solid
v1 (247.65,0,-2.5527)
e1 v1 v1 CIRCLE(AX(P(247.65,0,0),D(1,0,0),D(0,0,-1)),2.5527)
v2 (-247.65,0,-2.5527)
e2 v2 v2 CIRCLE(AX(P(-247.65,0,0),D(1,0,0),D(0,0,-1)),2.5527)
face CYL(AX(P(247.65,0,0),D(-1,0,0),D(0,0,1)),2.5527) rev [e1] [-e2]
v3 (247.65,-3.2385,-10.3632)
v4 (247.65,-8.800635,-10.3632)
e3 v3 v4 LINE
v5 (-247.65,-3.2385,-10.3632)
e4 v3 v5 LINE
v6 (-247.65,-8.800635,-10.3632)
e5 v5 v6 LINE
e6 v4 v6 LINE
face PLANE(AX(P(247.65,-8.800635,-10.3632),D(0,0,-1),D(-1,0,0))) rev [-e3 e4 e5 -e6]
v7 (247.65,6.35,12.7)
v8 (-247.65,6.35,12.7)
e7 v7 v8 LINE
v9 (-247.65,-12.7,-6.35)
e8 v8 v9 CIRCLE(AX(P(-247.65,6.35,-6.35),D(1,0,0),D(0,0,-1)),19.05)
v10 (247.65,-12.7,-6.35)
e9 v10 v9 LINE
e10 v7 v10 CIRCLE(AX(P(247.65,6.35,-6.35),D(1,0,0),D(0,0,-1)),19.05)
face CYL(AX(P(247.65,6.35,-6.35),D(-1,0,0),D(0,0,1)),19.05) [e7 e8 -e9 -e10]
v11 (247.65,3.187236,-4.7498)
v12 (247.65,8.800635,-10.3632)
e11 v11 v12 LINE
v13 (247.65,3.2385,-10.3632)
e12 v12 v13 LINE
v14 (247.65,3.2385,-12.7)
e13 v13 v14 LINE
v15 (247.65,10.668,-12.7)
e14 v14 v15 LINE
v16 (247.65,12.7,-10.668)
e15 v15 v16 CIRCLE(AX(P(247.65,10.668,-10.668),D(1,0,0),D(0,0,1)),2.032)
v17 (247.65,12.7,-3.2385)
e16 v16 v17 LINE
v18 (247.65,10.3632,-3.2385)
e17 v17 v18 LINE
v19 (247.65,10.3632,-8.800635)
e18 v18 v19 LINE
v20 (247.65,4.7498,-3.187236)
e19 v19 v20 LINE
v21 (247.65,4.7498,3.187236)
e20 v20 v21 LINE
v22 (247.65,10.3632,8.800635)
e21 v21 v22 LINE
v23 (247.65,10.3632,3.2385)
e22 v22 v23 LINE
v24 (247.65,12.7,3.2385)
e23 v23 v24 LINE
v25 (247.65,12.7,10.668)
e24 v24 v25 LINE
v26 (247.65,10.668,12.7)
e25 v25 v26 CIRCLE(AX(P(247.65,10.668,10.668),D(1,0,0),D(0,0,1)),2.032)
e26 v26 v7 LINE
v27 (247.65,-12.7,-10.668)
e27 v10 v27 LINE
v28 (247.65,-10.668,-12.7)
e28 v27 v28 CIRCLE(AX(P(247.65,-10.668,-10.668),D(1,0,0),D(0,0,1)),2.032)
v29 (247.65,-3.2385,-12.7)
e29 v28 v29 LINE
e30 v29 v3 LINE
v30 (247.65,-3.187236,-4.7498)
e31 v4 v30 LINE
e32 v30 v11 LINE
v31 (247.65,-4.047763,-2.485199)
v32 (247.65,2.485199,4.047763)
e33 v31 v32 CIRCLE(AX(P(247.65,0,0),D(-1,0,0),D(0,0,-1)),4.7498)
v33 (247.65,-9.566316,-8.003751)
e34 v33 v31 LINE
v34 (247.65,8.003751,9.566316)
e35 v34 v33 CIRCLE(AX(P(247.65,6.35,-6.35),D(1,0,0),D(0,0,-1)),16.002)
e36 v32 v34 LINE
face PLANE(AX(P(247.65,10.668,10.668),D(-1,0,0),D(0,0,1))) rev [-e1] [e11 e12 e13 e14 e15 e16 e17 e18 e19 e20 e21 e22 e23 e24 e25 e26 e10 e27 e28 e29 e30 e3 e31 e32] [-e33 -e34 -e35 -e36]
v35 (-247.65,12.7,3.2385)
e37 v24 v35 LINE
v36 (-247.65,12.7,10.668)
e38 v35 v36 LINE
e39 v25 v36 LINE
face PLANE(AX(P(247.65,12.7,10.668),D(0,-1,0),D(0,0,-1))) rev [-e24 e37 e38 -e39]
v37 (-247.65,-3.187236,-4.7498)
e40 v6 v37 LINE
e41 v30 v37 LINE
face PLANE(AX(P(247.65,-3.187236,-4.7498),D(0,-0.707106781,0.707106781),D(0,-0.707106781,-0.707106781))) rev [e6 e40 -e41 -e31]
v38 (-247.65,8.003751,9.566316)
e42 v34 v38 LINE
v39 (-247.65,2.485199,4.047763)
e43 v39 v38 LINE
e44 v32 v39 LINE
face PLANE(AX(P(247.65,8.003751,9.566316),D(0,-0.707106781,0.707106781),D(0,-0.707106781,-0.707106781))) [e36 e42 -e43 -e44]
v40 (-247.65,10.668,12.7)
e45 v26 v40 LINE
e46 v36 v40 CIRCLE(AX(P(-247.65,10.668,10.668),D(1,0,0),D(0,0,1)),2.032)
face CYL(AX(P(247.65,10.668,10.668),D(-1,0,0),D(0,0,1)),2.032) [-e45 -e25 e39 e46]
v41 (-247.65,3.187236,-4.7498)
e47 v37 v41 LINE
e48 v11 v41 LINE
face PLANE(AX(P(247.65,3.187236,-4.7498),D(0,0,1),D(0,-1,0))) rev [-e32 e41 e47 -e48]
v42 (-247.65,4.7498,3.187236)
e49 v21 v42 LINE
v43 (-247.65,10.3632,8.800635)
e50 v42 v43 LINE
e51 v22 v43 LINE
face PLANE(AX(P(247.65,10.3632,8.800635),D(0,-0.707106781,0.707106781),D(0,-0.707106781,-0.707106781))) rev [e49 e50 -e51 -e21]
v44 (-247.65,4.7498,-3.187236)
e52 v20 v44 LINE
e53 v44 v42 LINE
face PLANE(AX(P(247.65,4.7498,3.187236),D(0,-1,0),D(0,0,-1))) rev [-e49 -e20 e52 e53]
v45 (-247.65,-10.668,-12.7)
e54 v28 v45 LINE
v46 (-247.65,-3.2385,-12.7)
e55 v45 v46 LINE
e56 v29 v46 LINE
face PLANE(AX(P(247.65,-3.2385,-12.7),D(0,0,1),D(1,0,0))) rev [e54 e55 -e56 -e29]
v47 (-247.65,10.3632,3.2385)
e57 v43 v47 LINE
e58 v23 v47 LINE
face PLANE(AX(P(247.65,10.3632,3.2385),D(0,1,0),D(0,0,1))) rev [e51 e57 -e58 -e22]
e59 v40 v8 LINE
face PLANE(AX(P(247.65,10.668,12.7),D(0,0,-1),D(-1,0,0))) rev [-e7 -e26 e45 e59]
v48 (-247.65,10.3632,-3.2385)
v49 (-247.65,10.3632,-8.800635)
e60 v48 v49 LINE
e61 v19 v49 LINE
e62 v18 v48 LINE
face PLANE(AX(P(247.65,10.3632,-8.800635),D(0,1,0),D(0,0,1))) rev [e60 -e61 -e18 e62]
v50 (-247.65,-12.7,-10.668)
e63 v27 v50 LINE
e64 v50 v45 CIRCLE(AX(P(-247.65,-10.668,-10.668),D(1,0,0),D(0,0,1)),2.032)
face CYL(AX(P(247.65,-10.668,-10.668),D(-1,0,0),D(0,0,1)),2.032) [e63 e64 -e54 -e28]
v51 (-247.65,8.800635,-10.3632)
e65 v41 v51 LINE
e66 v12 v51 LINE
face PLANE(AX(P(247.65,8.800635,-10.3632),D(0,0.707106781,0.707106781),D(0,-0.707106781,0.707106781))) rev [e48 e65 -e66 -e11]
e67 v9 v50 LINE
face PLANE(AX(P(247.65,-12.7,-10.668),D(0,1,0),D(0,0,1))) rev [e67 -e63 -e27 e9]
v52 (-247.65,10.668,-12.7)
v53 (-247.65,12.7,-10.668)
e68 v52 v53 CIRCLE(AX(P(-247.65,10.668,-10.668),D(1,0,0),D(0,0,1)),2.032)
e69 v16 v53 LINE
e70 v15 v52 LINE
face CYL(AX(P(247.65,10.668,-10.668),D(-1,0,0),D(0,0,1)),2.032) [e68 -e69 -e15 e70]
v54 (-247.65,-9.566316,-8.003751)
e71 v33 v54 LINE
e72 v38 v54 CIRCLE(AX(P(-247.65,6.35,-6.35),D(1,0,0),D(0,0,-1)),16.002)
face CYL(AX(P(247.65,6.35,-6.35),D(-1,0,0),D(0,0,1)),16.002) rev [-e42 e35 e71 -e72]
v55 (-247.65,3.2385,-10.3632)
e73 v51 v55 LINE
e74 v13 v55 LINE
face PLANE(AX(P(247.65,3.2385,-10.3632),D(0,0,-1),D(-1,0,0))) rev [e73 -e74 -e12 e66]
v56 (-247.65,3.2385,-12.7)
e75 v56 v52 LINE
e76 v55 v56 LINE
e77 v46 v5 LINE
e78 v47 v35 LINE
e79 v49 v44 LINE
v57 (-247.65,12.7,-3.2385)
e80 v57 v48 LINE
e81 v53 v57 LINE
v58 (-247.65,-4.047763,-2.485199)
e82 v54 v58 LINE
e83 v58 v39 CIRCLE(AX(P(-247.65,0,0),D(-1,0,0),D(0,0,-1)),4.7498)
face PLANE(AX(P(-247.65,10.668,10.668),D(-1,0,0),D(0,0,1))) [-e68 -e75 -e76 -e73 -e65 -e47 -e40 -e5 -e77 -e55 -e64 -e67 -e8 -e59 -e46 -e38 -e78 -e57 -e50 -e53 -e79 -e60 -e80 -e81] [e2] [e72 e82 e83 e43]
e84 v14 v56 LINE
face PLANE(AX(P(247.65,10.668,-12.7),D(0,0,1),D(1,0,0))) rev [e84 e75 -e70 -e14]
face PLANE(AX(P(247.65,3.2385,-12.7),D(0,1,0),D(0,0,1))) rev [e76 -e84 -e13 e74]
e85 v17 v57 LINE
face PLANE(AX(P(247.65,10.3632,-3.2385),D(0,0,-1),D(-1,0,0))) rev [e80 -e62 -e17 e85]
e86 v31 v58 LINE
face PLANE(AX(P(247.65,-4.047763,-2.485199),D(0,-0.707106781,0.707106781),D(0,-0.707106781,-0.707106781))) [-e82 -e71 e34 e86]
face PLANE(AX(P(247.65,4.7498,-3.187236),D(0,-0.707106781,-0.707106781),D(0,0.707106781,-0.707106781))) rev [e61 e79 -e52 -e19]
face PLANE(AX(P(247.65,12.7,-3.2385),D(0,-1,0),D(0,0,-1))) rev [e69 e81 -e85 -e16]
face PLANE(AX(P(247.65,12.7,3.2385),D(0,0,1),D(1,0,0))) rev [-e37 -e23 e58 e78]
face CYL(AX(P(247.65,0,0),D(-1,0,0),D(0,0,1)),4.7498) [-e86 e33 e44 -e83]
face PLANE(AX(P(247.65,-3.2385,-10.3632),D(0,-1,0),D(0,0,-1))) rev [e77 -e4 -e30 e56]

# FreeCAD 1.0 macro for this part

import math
import FreeCAD as App
import Part
import Sketcher
from FreeCAD import Vector
Q = App.Units.Quantity

doc = App.newDocument("Part")
body = doc.addObject("PartDesign::Body", "Body")

sketch1 = body.newObject("Sketcher::SketchObject", "Sketch")
sketch1.AttachmentSupport = (doc.getObject("YZ_Plane"), [""])
sketch1.MapMode = "FlatFace"
sketch1.addGeometry([
    Part.LineSegment(Vector(12.7, 3.2385, 0), Vector(12.7, 10.668, 0)),
    Part.ArcOfCircle(Part.Circle(Vector(10.668, 10.668, 0), Vector(0, 0, 1), 2.032), math.radians(0), math.radians(90)),
    Part.LineSegment(Vector(10.668, 12.7, 0), Vector(6.35, 12.7, 0)),
    Part.ArcOfCircle(Part.Circle(Vector(6.35, -6.35, 0), Vector(0, 0, 1), 19.05), math.radians(90), math.radians(180)),
    Part.LineSegment(Vector(-12.7, -6.35, 0), Vector(-12.7, -10.668, 0)),
    Part.ArcOfCircle(Part.Circle(Vector(-10.668, -10.668, 0), Vector(0, 0, 1), 2.032), math.radians(-180), math.radians(-90)),
    Part.LineSegment(Vector(-10.668, -12.7, 0), Vector(-3.2385, -12.7, 0)),
    Part.LineSegment(Vector(-3.2385, -12.7, 0), Vector(-3.2385, -10.3632, 0)),
    Part.LineSegment(Vector(-3.2385, -10.3632, 0), Vector(-8.800635, -10.3632, 0)),
    Part.LineSegment(Vector(-8.800635, -10.3632, 0), Vector(-3.187236, -4.7498, 0)),
    Part.LineSegment(Vector(-3.187236, -4.7498, 0), Vector(3.187236, -4.7498, 0)),
    Part.LineSegment(Vector(3.187236, -4.7498, 0), Vector(8.800635, -10.3632, 0)),
    Part.LineSegment(Vector(8.800635, -10.3632, 0), Vector(3.2385, -10.3632, 0)),
    Part.LineSegment(Vector(3.2385, -10.3632, 0), Vector(3.2385, -12.7, 0)),
    Part.LineSegment(Vector(3.2385, -12.7, 0), Vector(10.668, -12.7, 0)),
    Part.ArcOfCircle(Part.Circle(Vector(10.668, -10.668, 0), Vector(0, 0, 1), 2.032), math.radians(-90), math.radians(0)),
    Part.LineSegment(Vector(12.7, -10.668, 0), Vector(12.7, -3.2385, 0)),
    Part.LineSegment(Vector(12.7, -3.2385, 0), Vector(10.3632, -3.2385, 0)),
    Part.LineSegment(Vector(10.3632, -3.2385, 0), Vector(10.3632, -8.800635, 0)),
    Part.LineSegment(Vector(10.3632, -8.800635, 0), Vector(4.7498, -3.187236, 0)),
    Part.LineSegment(Vector(4.7498, -3.187236, 0), Vector(4.7498, 3.187236, 0)),
    Part.LineSegment(Vector(4.7498, 3.187236, 0), Vector(10.3632, 8.800635, 0)),
    Part.LineSegment(Vector(10.3632, 8.800635, 0), Vector(10.3632, 3.2385, 0)),
    Part.LineSegment(Vector(10.3632, 3.2385, 0), Vector(12.7, 3.2385, 0)),
    Part.Circle(Vector(0, 0, 0), Vector(0, 0, 1), 2.5527),
    Part.LineSegment(Vector(-4.047763, -2.485199, 0), Vector(-9.566316, -8.003751, 0)),
    Part.ArcOfCircle(Part.Circle(Vector(6.35, -6.35, 0), Vector(0, 0, 1), 16.002), math.radians(84.068088), math.radians(185.931912)),
    Part.LineSegment(Vector(8.003751, 9.566316, 0), Vector(2.485199, 4.047763, 0)),
    Part.ArcOfCircle(Part.Circle(Vector(0, 0, 0), Vector(0, 0, 1), 4.7498), math.radians(58.45139), math.radians(211.54861)),
], False)
sketch1.addConstraint([
    Sketcher.Constraint("Tangent", 0, 2, 1, 1),
    Sketcher.Constraint("Tangent", 1, 2, 2, 1),
    Sketcher.Constraint("Tangent", 2, 2, 3, 1),
    Sketcher.Constraint("Tangent", 3, 2, 4, 1),
    Sketcher.Constraint("Tangent", 4, 2, 5, 1),
    Sketcher.Constraint("Tangent", 5, 2, 6, 1),
    Sketcher.Constraint("Coincident", 6, 2, 7, 1),
    Sketcher.Constraint("Coincident", 7, 2, 8, 1),
    Sketcher.Constraint("Coincident", 8, 2, 9, 1),
    Sketcher.Constraint("Coincident", 9, 2, 10, 1),
    Sketcher.Constraint("Coincident", 10, 2, 11, 1),
    Sketcher.Constraint("Coincident", 11, 2, 12, 1),
    Sketcher.Constraint("Coincident", 12, 2, 13, 1),
    Sketcher.Constraint("Coincident", 13, 2, 14, 1),
    Sketcher.Constraint("Tangent", 14, 2, 15, 1),
    Sketcher.Constraint("Tangent", 15, 2, 16, 1),
    Sketcher.Constraint("Coincident", 16, 2, 17, 1),
    Sketcher.Constraint("Coincident", 17, 2, 18, 1),
    Sketcher.Constraint("Coincident", 18, 2, 19, 1),
    Sketcher.Constraint("Coincident", 19, 2, 20, 1),
    Sketcher.Constraint("Coincident", 20, 2, 21, 1),
    Sketcher.Constraint("Coincident", 21, 2, 22, 1),
    Sketcher.Constraint("Coincident", 22, 2, 23, 1),
    Sketcher.Constraint("Coincident", 23, 2, 0, 1),
    Sketcher.Constraint("Coincident", 25, 2, 26, 2),
    Sketcher.Constraint("Coincident", 26, 1, 27, 1),
    Sketcher.Constraint("Coincident", 27, 2, 28, 1),
    Sketcher.Constraint("Coincident", 28, 2, 25, 1),
    Sketcher.Constraint("Vertical", 0),
    Sketcher.Constraint("Horizontal", 2),
    Sketcher.Constraint("Vertical", 4),
    Sketcher.Constraint("Horizontal", 6),
    Sketcher.Constraint("Vertical", 7),
    Sketcher.Constraint("Horizontal", 8),
    Sketcher.Constraint("Horizontal", 10),
    Sketcher.Constraint("Horizontal", 12),
    Sketcher.Constraint("Vertical", 13),
    Sketcher.Constraint("Horizontal", 14),
    Sketcher.Constraint("Vertical", 16),
    Sketcher.Constraint("Horizontal", 17),
    Sketcher.Constraint("Vertical", 18),
    Sketcher.Constraint("Vertical", 20),
    Sketcher.Constraint("Vertical", 22),
    Sketcher.Constraint("Horizontal", 23),
    Sketcher.Constraint("Coincident", 24, 3, -1, 1),
    Sketcher.Constraint("Coincident", 28, 3, -1, 1),
    Sketcher.Constraint("Coincident", 26, 3, 3, 3),
    Sketcher.Constraint("Equal", 1, 5),
    Sketcher.Constraint("Equal", 5, 15),
    Sketcher.Constraint("Symmetric", 1, 3, 5, 3, -1, 1),
    Sketcher.Constraint("Symmetric", 5, 3, 15, 3, -2),
    Sketcher.Constraint("Symmetric", 8, 2, 11, 2, -2),
    Sketcher.Constraint("Symmetric", 18, 2, 21, 2, -1),
    Sketcher.Constraint("Perpendicular", 9, 11),
    Sketcher.Constraint("Parallel", 11, 19),
    Sketcher.Constraint("Perpendicular", 19, 21),
    Sketcher.Constraint("Parallel", 21, 25),
    Sketcher.Constraint("Parallel", 25, 27),
    Sketcher.Constraint("Equal", 8, 12),
    Sketcher.Constraint("Equal", 14, 0),
    Sketcher.Constraint("Equal", 2, 4),
    Sketcher.Constraint("Equal", 23, 7),
    Sketcher.Constraint("Equal", 0, 16),
    Sketcher.Constraint("Equal", 12, 18),
    Sketcher.Constraint("Equal", 10, 20),
    Sketcher.Constraint("Equal", 9, 11),
    Sketcher.Constraint("Equal", 25, 27),
    Sketcher.Constraint("Radius", 1, Q("0.08 in")),
    Sketcher.Constraint("Radius", 3, Q("0.75 in")),
    Sketcher.Constraint("Radius", 26, Q("0.63 in")),
    Sketcher.Constraint("Diameter", 24, Q("0.201 in")),
    Sketcher.Constraint("Radius", 28, Q("0.187 in")),
    Sketcher.Constraint("DistanceX", 2, 2, 2, 1, Q("0.17 in")),
    Sketcher.Constraint("DistanceX", 17, 2, 17, 1, Q("0.092 in")),
    Sketcher.Constraint("DistanceX", 6, 1, 6, 2, Q("0.2925 in")),
    Sketcher.Constraint("DistanceY", 9, 2, -1, 1, Q("0.187 in")),
    Sketcher.Constraint("DistanceX", 10, 1, 10, 2, 6.374471),
    Sketcher.Constraint("DistanceX", -1, 1, 27, 2, 2.485199),
])
pad1 = body.newObject("PartDesign::Pad", "Pad")
pad1.Profile = sketch1
pad1.Type = "TwoLengths"
pad1.Length = Q("9.75 in")
pad1.Length2 = Q("9.75 in")

doc.recompute()
